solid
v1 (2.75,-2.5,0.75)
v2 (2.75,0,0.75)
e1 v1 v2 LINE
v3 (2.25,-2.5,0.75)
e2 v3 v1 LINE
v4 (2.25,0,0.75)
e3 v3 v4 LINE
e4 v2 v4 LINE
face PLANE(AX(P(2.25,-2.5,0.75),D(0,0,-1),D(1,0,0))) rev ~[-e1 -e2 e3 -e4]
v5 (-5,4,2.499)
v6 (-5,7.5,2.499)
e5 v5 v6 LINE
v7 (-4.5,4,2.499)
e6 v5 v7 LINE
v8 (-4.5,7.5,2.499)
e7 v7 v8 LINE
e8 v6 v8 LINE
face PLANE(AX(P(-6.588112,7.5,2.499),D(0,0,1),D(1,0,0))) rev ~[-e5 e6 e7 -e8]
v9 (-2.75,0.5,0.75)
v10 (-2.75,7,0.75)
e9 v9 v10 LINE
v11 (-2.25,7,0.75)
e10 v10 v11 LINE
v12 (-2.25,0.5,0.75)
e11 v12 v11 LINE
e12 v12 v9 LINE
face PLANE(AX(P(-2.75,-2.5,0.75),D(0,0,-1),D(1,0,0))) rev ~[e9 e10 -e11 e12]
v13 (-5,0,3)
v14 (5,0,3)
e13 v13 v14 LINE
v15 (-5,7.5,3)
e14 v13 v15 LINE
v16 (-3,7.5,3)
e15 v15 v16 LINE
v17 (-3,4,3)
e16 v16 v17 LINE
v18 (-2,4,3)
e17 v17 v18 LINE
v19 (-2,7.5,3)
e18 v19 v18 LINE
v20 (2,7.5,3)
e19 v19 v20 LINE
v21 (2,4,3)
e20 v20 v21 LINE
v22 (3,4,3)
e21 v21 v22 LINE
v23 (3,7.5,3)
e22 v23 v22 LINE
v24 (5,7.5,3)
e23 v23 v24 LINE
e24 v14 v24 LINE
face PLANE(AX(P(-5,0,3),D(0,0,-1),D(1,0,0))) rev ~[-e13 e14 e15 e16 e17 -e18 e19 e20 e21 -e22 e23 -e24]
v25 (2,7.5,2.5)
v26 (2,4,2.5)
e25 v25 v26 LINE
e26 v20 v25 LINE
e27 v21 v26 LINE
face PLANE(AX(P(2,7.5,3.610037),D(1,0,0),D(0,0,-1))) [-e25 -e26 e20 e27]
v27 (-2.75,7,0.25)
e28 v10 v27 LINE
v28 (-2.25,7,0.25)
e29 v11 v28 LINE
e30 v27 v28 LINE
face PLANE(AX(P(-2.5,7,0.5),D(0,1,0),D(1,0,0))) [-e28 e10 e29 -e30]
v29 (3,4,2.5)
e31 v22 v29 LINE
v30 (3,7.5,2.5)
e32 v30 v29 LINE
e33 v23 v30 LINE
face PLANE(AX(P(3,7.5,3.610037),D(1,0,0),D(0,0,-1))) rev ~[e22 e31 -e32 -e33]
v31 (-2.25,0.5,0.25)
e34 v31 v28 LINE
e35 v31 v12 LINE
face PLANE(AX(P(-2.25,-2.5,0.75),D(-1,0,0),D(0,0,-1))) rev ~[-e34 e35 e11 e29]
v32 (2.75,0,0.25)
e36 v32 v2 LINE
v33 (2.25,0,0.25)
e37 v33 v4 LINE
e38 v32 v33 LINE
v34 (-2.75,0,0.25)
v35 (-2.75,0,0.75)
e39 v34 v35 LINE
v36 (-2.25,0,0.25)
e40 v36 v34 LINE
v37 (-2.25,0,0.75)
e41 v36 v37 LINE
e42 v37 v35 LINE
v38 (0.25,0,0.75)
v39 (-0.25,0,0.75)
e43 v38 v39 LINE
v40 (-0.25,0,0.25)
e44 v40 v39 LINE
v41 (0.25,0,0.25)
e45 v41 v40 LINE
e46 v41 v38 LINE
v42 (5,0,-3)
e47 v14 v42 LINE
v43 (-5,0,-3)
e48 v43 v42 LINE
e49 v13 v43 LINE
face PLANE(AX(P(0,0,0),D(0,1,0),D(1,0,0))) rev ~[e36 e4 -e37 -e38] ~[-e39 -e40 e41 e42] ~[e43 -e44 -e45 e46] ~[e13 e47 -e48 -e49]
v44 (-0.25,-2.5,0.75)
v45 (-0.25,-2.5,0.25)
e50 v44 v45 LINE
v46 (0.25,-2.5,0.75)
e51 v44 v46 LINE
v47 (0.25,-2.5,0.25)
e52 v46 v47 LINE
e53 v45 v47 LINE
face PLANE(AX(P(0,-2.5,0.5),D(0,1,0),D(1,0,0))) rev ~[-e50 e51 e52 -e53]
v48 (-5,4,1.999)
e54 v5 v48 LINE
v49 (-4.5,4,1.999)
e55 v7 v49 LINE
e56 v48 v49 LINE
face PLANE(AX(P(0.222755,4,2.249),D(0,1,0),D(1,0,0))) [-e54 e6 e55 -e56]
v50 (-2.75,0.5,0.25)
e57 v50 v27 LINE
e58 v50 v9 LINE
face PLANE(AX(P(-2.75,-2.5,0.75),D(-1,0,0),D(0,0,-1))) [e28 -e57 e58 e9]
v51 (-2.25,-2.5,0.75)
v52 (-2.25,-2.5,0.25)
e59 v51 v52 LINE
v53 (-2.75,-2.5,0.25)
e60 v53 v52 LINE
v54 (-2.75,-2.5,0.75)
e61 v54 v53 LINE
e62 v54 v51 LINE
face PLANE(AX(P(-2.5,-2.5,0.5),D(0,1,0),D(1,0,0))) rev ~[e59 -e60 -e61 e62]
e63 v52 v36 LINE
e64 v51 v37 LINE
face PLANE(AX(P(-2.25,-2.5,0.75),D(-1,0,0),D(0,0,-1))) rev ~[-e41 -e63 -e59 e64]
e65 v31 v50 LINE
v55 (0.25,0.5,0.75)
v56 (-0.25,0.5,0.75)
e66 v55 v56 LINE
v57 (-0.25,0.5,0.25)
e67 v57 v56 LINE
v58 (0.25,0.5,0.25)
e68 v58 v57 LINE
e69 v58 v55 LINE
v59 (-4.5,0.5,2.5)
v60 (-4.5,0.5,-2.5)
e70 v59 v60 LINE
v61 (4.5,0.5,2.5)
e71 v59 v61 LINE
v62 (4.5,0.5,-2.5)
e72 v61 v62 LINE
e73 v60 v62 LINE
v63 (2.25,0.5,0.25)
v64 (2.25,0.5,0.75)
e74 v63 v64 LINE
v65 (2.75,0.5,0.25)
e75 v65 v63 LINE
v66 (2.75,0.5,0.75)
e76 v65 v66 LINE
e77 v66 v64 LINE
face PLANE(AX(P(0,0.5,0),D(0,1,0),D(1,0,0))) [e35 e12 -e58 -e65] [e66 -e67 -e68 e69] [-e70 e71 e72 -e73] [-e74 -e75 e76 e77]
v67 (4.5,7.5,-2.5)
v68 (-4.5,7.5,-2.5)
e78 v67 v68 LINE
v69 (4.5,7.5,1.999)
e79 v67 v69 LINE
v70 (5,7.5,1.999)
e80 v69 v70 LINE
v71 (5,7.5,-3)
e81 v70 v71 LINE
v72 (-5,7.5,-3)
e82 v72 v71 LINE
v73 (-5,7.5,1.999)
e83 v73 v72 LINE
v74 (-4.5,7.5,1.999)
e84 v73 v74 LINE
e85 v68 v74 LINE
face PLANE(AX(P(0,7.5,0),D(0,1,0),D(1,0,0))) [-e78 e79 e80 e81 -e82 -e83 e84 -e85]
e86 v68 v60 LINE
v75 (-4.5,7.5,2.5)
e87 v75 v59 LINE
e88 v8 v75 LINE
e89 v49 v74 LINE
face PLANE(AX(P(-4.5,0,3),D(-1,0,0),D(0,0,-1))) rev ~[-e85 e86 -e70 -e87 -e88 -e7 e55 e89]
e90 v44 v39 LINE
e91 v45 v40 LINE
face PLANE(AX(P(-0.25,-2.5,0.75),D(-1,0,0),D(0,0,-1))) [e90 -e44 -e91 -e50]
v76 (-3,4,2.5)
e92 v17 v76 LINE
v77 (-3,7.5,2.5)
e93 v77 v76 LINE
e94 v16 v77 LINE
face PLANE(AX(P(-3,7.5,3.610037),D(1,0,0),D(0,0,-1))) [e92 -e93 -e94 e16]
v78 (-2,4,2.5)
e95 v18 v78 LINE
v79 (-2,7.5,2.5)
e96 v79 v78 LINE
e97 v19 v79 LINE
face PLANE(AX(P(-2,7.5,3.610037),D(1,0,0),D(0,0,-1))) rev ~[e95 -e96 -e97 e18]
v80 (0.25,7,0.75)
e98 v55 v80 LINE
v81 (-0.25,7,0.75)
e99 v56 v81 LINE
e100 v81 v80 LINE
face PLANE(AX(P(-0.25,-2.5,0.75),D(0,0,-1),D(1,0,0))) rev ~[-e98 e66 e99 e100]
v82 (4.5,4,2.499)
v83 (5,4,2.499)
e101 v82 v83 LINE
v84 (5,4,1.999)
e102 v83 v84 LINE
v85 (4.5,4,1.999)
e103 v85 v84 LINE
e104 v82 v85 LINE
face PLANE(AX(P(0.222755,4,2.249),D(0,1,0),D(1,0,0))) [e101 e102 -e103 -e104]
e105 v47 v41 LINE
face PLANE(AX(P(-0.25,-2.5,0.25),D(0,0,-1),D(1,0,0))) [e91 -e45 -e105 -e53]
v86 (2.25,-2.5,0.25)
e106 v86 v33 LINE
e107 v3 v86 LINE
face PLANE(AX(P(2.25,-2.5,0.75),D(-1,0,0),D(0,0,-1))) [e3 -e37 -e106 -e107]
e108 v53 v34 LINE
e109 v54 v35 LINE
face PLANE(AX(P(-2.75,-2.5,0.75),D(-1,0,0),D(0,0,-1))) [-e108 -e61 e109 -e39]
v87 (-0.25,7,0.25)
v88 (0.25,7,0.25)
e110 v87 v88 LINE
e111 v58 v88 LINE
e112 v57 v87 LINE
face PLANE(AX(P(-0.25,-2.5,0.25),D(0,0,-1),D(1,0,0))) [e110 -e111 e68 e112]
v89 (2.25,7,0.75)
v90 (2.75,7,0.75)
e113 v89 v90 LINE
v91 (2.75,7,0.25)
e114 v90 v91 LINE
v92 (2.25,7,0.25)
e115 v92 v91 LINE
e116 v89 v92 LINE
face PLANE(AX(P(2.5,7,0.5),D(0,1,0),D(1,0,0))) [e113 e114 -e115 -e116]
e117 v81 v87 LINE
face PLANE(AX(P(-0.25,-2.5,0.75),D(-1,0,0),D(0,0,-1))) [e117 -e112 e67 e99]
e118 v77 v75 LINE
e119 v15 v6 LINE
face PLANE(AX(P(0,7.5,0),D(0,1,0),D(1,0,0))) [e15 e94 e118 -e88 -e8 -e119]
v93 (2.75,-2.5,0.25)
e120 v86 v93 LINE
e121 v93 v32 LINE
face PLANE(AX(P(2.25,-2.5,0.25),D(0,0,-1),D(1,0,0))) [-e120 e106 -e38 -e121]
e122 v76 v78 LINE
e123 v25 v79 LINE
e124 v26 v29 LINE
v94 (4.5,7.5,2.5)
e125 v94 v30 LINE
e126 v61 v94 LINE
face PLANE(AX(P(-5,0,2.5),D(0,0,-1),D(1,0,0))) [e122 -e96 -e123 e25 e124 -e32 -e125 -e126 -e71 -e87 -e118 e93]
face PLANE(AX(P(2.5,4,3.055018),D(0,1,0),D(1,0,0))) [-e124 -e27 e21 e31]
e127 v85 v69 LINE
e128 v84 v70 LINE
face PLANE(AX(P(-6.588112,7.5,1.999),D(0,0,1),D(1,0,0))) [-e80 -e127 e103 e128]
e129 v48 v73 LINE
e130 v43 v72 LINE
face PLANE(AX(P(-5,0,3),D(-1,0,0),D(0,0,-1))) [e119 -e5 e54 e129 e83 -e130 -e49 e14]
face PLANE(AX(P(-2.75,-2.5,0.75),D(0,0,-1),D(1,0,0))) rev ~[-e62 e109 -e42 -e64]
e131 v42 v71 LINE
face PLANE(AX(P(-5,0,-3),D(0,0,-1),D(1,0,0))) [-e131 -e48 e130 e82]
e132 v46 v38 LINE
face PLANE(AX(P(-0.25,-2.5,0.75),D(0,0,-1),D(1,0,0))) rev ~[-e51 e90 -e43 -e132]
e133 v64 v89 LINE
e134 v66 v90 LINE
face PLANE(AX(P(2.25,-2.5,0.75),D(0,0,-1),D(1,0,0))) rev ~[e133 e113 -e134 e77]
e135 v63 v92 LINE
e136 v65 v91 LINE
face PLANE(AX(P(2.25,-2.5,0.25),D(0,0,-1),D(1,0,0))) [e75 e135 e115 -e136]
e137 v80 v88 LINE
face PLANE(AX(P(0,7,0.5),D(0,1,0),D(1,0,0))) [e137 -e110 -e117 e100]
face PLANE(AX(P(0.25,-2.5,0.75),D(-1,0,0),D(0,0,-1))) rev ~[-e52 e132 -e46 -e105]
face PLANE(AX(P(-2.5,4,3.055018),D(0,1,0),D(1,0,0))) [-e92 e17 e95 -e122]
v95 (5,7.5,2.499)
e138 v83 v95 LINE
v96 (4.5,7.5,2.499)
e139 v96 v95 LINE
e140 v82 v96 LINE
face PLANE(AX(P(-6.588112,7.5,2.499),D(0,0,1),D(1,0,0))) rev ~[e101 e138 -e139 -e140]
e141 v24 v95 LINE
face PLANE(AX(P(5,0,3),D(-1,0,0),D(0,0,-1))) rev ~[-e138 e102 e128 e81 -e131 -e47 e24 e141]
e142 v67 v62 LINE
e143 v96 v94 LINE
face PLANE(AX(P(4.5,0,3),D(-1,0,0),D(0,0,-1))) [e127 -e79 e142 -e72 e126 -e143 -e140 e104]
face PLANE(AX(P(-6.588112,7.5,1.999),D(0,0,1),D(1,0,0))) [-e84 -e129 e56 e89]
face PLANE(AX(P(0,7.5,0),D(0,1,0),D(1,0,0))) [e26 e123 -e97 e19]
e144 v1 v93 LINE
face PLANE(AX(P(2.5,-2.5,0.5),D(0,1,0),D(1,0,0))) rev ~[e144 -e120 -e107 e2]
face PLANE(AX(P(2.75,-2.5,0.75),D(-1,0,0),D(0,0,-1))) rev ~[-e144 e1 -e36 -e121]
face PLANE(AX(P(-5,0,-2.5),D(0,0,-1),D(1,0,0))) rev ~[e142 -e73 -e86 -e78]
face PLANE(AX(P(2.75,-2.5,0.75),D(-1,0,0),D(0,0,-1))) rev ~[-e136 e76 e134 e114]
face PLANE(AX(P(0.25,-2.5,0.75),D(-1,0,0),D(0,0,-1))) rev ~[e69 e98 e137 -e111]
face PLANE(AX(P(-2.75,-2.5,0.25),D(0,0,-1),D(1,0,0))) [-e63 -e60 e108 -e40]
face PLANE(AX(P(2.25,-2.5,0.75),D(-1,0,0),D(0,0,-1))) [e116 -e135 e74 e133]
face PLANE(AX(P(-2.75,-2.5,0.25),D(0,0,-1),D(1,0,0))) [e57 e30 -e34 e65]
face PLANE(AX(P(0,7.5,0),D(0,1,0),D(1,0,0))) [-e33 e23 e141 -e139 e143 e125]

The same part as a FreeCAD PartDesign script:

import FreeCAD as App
import Part
import Sketcher


def faces_at(feature, points):
    """Names of the faces that lie closest to the given points."""
    faces = feature.Shape.Faces
    near = lambda p: min(range(len(faces)), key=lambda i: faces[i].distToShape(Part.Vertex(*p))[0])
    return sorted({f"Face{near(p) + 1}" for p in points})


def add_polygon(sketch, points):
    """Adds a closed chain of lines whose ends are joined by coincident constraints."""
    first, n = sketch.GeometryCount, len(points)
    for a, b in zip(points, points[1:] + points[:1]):
        sketch.addGeometry(Part.LineSegment(App.Vector(*a, 0), App.Vector(*b, 0)), False)
    for i in range(n):
        sketch.addConstraint(Sketcher.Constraint("Coincident", first + i, 2, first + (i + 1) % n, 1))

doc = App.newDocument("Part")
body = doc.addObject("PartDesign::Body", "Body")

# Sketch on XZ plane
sketch1 = body.newObject("Sketcher::SketchObject", "Sketch")
sketch1.AttachmentSupport = (doc.getObject("XZ_Plane"), [""])
sketch1.MapMode = "FlatFace"
add_polygon(sketch1, [(-5, -3), (-5, 3), (5, 3), (5, -3)])  # lines 0-3
sketch1.addConstraint([
    Sketcher.Constraint("Vertical", 0),
    Sketcher.Constraint("Horizontal", 1),
    Sketcher.Constraint("Vertical", 2),
    Sketcher.Constraint("Horizontal", 3),
    Sketcher.Constraint("Symmetric", 0, 2, 2, 2, -1, 1),
    Sketcher.Constraint("DistanceX", 1, 1, 1, 2, 10.0),
    Sketcher.Constraint("DistanceY", 0, 1, 0, 2, 6.0),
])
pad1 = body.newObject("PartDesign::Pad", "Pad")
pad1.Profile = sketch1
pad1.Length = 7.5
pad1.Reversed = True
doc.recompute()

thickness = body.newObject("PartDesign::Thickness", "Thickness")
thickness.Base = (pad1, faces_at(pad1, [(0, 7.5, 0)]))
thickness.Value = 0.5
thickness.Reversed = True
thickness.Join = "Intersection"

# Sketch on XZ plane
sketch2 = body.newObject("Sketcher::SketchObject", "Sketch001")
sketch2.AttachmentSupport = (doc.getObject("XZ_Plane"), [""])
sketch2.MapMode = "FlatFace"
sketch2.AttachmentOffset = App.Placement(App.Vector(0, 0, -7.5), App.Rotation())
add_polygon(sketch2, [(-6.6, 2), (-6.6, 2.5), (7, 2.5), (7, 2)])  # lines 0-3
add_polygon(sketch2, [(-3, 2.5), (-3, 3.6), (-2, 3.6), (-2, 2.5)])  # lines 4-7
add_polygon(sketch2, [(2, 2.5), (2, 3.6), (3, 3.6), (3, 2.5)])  # lines 8-11
sketch2.addConstraint([
    Sketcher.Constraint("Vertical", 0),
    Sketcher.Constraint("Horizontal", 1),
    Sketcher.Constraint("Vertical", 2),
    Sketcher.Constraint("Horizontal", 3),
    Sketcher.Constraint("Vertical", 4),
    Sketcher.Constraint("Horizontal", 5),
    Sketcher.Constraint("Vertical", 6),
    Sketcher.Constraint("Horizontal", 7),
    Sketcher.Constraint("Vertical", 8),
    Sketcher.Constraint("Horizontal", 9),
    Sketcher.Constraint("Vertical", 10),
    Sketcher.Constraint("Horizontal", 11),
    Sketcher.Constraint("Symmetric", 5, 2, 8, 2, -2),
    Sketcher.Constraint("Symmetric", 7, 2, 10, 2, -2),
    Sketcher.Constraint("DistanceX", 5, 1, 5, 2, 1.0),
    Sketcher.Constraint("DistanceY", 0, 1, 0, 2, 0.5),
    Sketcher.Constraint("DistanceX", 4, 2, -1, 1, 3.0),
    Sketcher.Constraint("DistanceY", -1, 1, 6, 2, 2.5),
    Sketcher.Constraint("DistanceY", -1, 1, 0, 2, 2.499),
    Sketcher.Constraint("DistanceX", 1, 1, 1, 2, 13.621734),
    Sketcher.Constraint("DistanceY", 4, 1, 4, 2, 1.110037),
    Sketcher.Constraint("DistanceX", 0, 2, -1, 1, 6.588112),
])
pocket1 = body.newObject("PartDesign::Pocket", "Pocket")
pocket1.Profile = sketch2
pocket1.Length = 3.5
pocket1.Reversed = True

# Sketch on XZ plane
sketch3 = body.newObject("Sketcher::SketchObject", "Sketch002")
sketch3.AttachmentSupport = (doc.getObject("XZ_Plane"), [""])
sketch3.MapMode = "FlatFace"
sketch3.AttachmentOffset = App.Placement(App.Vector(0, 0, -0.5), App.Rotation())
add_polygon(sketch3, [(-0.2, 0.2), (-0.2, 0.8), (0.2, 0.8), (0.2, 0.2)])  # lines 0-3
add_polygon(sketch3, [(-2.8, 0.2), (-2.8, 0.8), (-2.2, 0.8), (-2.2, 0.2)])  # lines 4-7
add_polygon(sketch3, [(2.2, 0.2), (2.2, 0.8), (2.8, 0.8), (2.8, 0.2)])  # lines 8-11
sketch3.addConstraint([
    Sketcher.Constraint("Vertical", 0),
    Sketcher.Constraint("Horizontal", 1),
    Sketcher.Constraint("Vertical", 2),
    Sketcher.Constraint("Horizontal", 3),
    Sketcher.Constraint("Vertical", 4),
    Sketcher.Constraint("Horizontal", 5),
    Sketcher.Constraint("Vertical", 6),
    Sketcher.Constraint("Horizontal", 7),
    Sketcher.Constraint("Vertical", 8),
    Sketcher.Constraint("Horizontal", 9),
    Sketcher.Constraint("Vertical", 10),
    Sketcher.Constraint("Horizontal", 11),
    Sketcher.Constraint("Symmetric", 5, 2, 8, 2, -2),
    Sketcher.Constraint("Symmetric", 7, 2, 10, 2, -2),
    Sketcher.Constraint("Horizontal", 1, 2, 4, 2),
    Sketcher.Constraint("Horizontal", 3, 2, 6, 2),
    Sketcher.Constraint("Equal", 3, 5),
    Sketcher.Constraint("Equal", 11, 0),
    Sketcher.Constraint("DistanceX", 1, 1, 1, 2, 0.5),
    Sketcher.Constraint("DistanceX", 4, 2, 1, 2, 3.0),
    Sketcher.Constraint("DistanceX", 1, 2, 8, 2, 2.0),
    Sketcher.Constraint("DistanceY", -1, 1, 0, 2, 0.75),
])
pad2 = body.newObject("PartDesign::Pad", "Pad001")
pad2.Profile = sketch3
pad2.Type = "TwoLengths"
pad2.Length = 6.5
pad2.Length2 = 3
pad2.Reversed = True

doc.recompute()
